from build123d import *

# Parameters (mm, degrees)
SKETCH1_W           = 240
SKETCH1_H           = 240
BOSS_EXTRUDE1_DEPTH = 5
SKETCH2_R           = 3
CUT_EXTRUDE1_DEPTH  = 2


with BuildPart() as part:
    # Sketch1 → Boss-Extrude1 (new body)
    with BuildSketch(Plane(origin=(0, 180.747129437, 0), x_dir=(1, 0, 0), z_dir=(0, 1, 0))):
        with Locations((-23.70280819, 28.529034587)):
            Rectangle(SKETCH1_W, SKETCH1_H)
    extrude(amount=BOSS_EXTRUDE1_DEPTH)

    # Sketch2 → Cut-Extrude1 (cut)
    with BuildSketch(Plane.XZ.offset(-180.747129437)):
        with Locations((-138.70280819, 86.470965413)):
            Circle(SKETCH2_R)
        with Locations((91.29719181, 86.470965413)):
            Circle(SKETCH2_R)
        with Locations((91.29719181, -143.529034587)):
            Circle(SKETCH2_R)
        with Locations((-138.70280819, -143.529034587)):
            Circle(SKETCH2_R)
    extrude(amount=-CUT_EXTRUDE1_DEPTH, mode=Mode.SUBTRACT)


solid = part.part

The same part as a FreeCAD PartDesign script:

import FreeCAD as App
import Part
import Sketcher


def add_polygon(sketch, points):
    """Adds a closed chain of lines whose ends are joined by coincident constraints."""
    first, n = sketch.GeometryCount, len(points)
    for a, b in zip(points, points[1:] + points[:1]):
        sketch.addGeometry(Part.LineSegment(App.Vector(*a, 0), App.Vector(*b, 0)), False)
    for i in range(n):
        sketch.addConstraint(Sketcher.Constraint("Coincident", first + i, 2, first + (i + 1) % n, 1))

doc = App.newDocument("Part")
body = doc.addObject("PartDesign::Body", "Body")

# Sketch on XZ plane
sketch1 = body.newObject("Sketcher::SketchObject", "Sketch")
sketch1.AttachmentSupport = (doc.getObject("XZ_Plane"), [""])
sketch1.MapMode = "FlatFace"
sketch1.AttachmentOffset = App.Placement(App.Vector(0, 0, -180.747129), App.Rotation())
add_polygon(sketch1, [(-144, -149), (-144, 91), (96, 91), (96, -149)])  # lines 0-3
sketch1.addConstraint([
    Sketcher.Constraint("Vertical", 0),
    Sketcher.Constraint("Horizontal", 1),
    Sketcher.Constraint("Vertical", 2),
    Sketcher.Constraint("Horizontal", 3),
    Sketcher.Constraint("Equal", 3, 0),
    Sketcher.Constraint("DistanceX", 1, 1, 1, 2, 240.0),
    Sketcher.Constraint("DistanceX", 0, 2, -1, 1, 143.702808),
    Sketcher.Constraint("DistanceY", -1, 1, 0, 2, 91.470965),
])
pad1 = body.newObject("PartDesign::Pad", "Pad")
pad1.Profile = sketch1
pad1.Length = 5
pad1.Reversed = True

# Sketch on XZ plane
sketch2 = body.newObject("Sketcher::SketchObject", "Sketch001")
sketch2.AttachmentSupport = (doc.getObject("XZ_Plane"), [""])
sketch2.MapMode = "FlatFace"
sketch2.AttachmentOffset = App.Placement(App.Vector(0, 0, -180.747129), App.Rotation())
sketch2.addGeometry([
    Part.Circle(App.Vector(-138.7, 86.5, 0), App.Vector(0, 0, 1), 3),
    Part.Circle(App.Vector(91.3, 86.5, 0), App.Vector(0, 0, 1), 3),
    Part.Circle(App.Vector(91.3, -143.5, 0), App.Vector(0, 0, 1), 3),
    Part.Circle(App.Vector(-138.7, -143.5, 0), App.Vector(0, 0, 1), 3),
], False)
sketch2.addConstraint([
    Sketcher.Constraint("Equal", 0, 1),
    Sketcher.Constraint("Equal", 1, 2),
    Sketcher.Constraint("Equal", 2, 3),
    Sketcher.Constraint("Horizontal", 0, 3, 1, 3),
    Sketcher.Constraint("Horizontal", 2, 3, 3, 3),
    Sketcher.Constraint("Vertical", 1, 3, 2, 3),
    Sketcher.Constraint("Vertical", 0, 3, 3, 3),
    Sketcher.Constraint("Diameter", 0, 6.0),
    Sketcher.Constraint("DistanceX", 0, 3, 1, 3, 230.0),
    Sketcher.Constraint("DistanceY", 2, 3, 1, 3, 230.0),
    Sketcher.Constraint("DistanceX", 0, 3, -1, 1, 138.702808),
    Sketcher.Constraint("DistanceY", -1, 1, 0, 3, 86.470965),
])
pocket1 = body.newObject("PartDesign::Pocket", "Pocket")
pocket1.Profile = sketch2
pocket1.Length = 2

doc.recompute()
